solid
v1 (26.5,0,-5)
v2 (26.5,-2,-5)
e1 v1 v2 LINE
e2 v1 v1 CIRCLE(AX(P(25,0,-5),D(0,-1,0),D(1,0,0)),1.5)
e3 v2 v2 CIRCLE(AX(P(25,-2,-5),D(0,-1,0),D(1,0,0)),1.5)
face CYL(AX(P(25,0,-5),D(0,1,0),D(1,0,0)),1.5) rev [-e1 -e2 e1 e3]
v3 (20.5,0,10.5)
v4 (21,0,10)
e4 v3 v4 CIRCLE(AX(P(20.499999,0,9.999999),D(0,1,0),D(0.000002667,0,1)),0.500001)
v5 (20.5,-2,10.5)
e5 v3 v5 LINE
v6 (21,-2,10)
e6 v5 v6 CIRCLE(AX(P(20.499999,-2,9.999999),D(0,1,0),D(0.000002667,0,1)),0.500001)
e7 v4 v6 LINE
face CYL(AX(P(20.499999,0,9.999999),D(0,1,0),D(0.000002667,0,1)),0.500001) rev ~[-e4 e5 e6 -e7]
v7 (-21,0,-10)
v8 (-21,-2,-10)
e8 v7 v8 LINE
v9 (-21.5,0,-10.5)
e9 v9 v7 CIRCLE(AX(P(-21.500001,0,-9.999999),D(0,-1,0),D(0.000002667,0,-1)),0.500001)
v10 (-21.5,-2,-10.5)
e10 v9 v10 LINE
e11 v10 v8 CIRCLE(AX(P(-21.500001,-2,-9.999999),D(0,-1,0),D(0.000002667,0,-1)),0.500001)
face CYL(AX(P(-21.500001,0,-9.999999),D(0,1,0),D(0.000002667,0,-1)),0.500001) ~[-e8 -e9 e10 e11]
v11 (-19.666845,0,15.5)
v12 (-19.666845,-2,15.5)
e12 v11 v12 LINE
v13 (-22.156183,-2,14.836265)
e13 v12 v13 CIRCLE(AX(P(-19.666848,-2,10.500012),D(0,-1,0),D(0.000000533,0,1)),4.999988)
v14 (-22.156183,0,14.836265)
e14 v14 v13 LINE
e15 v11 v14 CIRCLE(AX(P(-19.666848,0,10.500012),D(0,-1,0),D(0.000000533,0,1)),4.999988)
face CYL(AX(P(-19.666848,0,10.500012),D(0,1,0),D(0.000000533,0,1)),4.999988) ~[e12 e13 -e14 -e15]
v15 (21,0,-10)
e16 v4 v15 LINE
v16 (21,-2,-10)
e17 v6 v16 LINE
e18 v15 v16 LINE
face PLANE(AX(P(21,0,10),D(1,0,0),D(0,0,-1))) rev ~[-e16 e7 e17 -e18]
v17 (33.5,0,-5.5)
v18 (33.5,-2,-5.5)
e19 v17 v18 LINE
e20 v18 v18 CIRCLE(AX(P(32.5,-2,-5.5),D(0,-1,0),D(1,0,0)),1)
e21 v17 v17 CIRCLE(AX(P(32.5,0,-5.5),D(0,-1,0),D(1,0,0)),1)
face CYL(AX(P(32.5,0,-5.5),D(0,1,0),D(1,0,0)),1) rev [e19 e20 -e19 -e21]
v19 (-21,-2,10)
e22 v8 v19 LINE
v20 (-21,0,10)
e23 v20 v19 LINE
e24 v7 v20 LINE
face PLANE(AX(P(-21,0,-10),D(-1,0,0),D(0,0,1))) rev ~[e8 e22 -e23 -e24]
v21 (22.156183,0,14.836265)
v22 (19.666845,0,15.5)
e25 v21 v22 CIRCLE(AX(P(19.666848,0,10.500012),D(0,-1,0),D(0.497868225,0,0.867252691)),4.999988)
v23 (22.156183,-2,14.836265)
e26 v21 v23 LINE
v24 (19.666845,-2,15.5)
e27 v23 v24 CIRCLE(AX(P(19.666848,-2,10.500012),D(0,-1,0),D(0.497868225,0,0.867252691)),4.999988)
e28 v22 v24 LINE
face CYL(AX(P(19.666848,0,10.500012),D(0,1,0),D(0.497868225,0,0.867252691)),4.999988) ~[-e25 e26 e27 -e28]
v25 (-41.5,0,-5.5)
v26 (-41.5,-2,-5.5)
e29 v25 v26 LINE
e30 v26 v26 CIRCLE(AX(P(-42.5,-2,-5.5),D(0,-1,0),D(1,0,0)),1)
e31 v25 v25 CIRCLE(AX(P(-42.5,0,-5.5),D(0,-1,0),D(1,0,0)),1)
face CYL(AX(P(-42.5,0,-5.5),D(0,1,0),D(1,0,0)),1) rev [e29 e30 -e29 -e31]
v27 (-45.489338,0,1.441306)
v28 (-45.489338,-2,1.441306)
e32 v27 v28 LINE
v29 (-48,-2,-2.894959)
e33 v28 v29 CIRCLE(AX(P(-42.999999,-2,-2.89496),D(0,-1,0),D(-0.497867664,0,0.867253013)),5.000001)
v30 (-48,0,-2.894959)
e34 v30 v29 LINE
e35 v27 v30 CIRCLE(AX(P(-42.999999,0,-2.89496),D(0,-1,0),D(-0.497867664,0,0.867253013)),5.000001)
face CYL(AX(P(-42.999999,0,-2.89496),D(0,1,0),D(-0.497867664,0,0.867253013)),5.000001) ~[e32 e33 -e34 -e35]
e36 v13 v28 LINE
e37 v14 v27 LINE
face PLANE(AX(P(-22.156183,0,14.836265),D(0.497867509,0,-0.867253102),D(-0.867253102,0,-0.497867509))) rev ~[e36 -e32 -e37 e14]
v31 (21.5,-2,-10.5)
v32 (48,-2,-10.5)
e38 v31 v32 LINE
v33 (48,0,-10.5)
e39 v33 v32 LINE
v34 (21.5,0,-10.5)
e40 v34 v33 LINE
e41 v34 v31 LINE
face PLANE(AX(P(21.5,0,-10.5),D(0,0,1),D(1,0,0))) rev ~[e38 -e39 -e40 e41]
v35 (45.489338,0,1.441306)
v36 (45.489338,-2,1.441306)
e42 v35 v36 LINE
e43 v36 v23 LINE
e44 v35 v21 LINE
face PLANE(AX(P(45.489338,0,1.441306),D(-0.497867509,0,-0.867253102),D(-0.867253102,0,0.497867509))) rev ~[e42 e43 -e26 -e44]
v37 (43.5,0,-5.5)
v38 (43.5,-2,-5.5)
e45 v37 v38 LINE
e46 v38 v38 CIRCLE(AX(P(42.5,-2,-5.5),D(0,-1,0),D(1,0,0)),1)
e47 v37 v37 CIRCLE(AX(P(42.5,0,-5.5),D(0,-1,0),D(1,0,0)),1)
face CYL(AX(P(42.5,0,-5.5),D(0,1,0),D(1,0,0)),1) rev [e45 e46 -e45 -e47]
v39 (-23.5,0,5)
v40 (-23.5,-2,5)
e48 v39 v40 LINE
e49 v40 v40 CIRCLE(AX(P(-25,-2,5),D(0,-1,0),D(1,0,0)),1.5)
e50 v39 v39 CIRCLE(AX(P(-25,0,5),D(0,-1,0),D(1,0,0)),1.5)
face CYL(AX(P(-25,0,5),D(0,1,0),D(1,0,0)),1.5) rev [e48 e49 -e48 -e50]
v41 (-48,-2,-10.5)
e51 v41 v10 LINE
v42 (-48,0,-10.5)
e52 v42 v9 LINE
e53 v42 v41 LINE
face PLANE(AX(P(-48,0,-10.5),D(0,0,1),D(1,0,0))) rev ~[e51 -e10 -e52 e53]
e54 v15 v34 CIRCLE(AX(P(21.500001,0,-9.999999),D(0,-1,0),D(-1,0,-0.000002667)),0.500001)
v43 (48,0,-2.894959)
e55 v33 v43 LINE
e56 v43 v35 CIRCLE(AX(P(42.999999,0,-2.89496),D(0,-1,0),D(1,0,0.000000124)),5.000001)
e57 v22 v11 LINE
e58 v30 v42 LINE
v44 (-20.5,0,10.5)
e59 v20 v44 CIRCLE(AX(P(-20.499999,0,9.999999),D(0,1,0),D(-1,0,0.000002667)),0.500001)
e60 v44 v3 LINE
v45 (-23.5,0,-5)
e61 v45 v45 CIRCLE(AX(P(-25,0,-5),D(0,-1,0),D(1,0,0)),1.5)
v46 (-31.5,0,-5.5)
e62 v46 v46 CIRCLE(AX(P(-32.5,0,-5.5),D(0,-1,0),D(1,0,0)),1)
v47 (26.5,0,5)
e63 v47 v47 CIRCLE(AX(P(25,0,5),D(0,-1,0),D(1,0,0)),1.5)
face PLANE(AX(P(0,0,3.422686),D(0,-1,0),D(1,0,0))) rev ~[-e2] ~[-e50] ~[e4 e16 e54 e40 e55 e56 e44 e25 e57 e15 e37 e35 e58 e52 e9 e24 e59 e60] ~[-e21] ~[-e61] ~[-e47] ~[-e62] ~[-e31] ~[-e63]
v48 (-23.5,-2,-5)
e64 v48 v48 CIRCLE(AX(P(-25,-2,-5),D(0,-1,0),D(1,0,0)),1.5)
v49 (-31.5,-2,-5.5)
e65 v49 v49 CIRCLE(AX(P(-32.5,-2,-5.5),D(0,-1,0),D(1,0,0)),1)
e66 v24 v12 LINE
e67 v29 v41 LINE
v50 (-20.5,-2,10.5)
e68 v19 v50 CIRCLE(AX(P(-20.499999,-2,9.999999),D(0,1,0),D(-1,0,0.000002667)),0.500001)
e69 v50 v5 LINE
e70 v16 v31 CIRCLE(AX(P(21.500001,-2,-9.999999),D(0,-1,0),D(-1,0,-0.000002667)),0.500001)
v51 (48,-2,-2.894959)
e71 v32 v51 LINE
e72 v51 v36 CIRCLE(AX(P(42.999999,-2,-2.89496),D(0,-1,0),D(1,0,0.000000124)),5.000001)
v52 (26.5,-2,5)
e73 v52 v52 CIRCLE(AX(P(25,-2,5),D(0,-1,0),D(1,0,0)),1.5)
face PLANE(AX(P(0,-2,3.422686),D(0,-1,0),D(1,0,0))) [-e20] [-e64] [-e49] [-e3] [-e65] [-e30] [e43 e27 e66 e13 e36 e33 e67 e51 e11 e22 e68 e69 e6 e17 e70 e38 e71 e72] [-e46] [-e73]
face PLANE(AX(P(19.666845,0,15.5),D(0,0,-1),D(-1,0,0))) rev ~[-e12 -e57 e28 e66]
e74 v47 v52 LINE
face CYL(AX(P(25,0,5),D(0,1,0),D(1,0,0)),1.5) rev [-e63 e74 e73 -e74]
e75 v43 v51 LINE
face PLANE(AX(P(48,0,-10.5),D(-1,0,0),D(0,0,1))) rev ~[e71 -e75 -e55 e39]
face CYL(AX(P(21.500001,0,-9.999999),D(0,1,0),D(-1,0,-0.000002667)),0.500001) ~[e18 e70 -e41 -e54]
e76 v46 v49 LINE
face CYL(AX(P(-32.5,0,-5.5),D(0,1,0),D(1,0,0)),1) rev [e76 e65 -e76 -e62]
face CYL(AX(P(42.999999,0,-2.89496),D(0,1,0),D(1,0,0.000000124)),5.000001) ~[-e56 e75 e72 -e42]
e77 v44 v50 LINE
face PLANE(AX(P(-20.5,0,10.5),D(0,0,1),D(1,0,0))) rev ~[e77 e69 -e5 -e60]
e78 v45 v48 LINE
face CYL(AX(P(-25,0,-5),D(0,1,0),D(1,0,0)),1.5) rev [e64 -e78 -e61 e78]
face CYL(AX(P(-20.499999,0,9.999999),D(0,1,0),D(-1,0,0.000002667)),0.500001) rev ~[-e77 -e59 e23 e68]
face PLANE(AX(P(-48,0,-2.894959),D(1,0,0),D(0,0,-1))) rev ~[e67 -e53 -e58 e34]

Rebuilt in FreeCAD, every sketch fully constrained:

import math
import FreeCAD as App
import Part
import Sketcher

V = App.Vector
Q = App.Units.Quantity

doc = App.newDocument("Part")
body = doc.addObject("PartDesign::Body", "Body")

# Sketch on XZ plane
sketch1 = doc.addObject("Sketcher::SketchObject", "Sketch")
body.addObject(sketch1)
sketch1.AttachmentSupport = (doc.XZ_Plane, [""])
sketch1.MapMode = "FlatFace"
sketch1.addGeometry([
    Part.ArcOfCircle(Part.Circle(V(-20.499999, 9.999999, 0), V(0, 0, 1), 0.500001), math.radians(90.000153), math.radians(179.999847)),  # 0
    Part.LineSegment(V(-20.5, 10.5, 0), V(20.5, 10.5, 0)),  # 1
    Part.ArcOfCircle(Part.Circle(V(20.499999, 9.999999, 0), V(0, 0, 1), 0.500001), math.radians(0.000153), math.radians(89.999847)),  # 2
    Part.LineSegment(V(21, 10, 0), V(21, -10, 0)),  # 3
    Part.ArcOfCircle(Part.Circle(V(21.500001, -9.999999, 0), V(0, 0, 1), 0.500001), math.radians(-179.999847), math.radians(-90.000153)),  # 4
    Part.LineSegment(V(21.5, -10.5, 0), V(48, -10.5, 0)),  # 5
    Part.LineSegment(V(48, -10.5, 0), V(48, -2.894959, 0)),  # 6
    Part.ArcOfCircle(Part.Circle(V(42.999999, -2.89496, 0), V(0, 0, 1), 5.000001), math.radians(0.000007), math.radians(60.140974)),  # 7
    Part.LineSegment(V(45.489338, 1.441306, 0), V(22.156183, 14.836265, 0)),  # 8
    Part.ArcOfCircle(Part.Circle(V(19.666848, 10.500012, 0), V(0, 0, 1), 4.999988), math.radians(60.140937), math.radians(90.000031)),  # 9
    Part.LineSegment(V(19.666845, 15.5, 0), V(-19.666845, 15.5, 0)),  # 10
    Part.ArcOfCircle(Part.Circle(V(-19.666848, 10.500012, 0), V(0, 0, 1), 4.999988), math.radians(89.999969), math.radians(119.859063)),  # 11
    Part.LineSegment(V(-22.156183, 14.836265, 0), V(-45.489338, 1.441306, 0)),  # 12
    Part.ArcOfCircle(Part.Circle(V(-42.999999, -2.89496, 0), V(0, 0, 1), 5.000001), math.radians(119.859026), math.radians(179.999993)),  # 13
    Part.LineSegment(V(-48, -2.894959, 0), V(-48, -10.5, 0)),  # 14
    Part.LineSegment(V(-48, -10.5, 0), V(-21.5, -10.5, 0)),  # 15
    Part.ArcOfCircle(Part.Circle(V(-21.500001, -9.999999, 0), V(0, 0, 1), 0.500001), math.radians(-89.999847), math.radians(-0.000153)),  # 16
    Part.LineSegment(V(-21, -10, 0), V(-21, 10, 0)),  # 17
    Part.Circle(V(-42.5, -5.5, 0), V(0, 0, 1), 1),  # 18
    Part.Circle(V(-32.5, -5.5, 0), V(0, 0, 1), 1),  # 19
    Part.Circle(V(-25, -5, 0), V(0, 0, 1), 1.5),  # 20
    Part.Circle(V(25, -5, 0), V(0, 0, 1), 1.5),  # 21
    Part.Circle(V(32.5, -5.5, 0), V(0, 0, 1), 1),  # 22
    Part.Circle(V(42.5, -5.5, 0), V(0, 0, 1), 1),  # 23
    Part.Circle(V(-25, 5, 0), V(0, 0, 1), 1.5),  # 24
    Part.Circle(V(25, 5, 0), V(0, 0, 1), 1.5),  # 25
], False)
sketch1.addConstraint([
    Sketcher.Constraint("Coincident", 0, 1, 1, 1),
    Sketcher.Constraint("Coincident", 1, 2, 2, 2),
    Sketcher.Constraint("Coincident", 2, 1, 3, 1),
    Sketcher.Constraint("Coincident", 3, 2, 4, 1),
    Sketcher.Constraint("Coincident", 4, 2, 5, 1),
    Sketcher.Constraint("Coincident", 5, 2, 6, 1),
    Sketcher.Constraint("Tangent", 6, 2, 7, 1),
    Sketcher.Constraint("Tangent", 7, 2, 8, 1),
    Sketcher.Constraint("Tangent", 8, 2, 9, 1),
    Sketcher.Constraint("Tangent", 9, 2, 10, 1),
    Sketcher.Constraint("Tangent", 10, 2, 11, 1),
    Sketcher.Constraint("Tangent", 11, 2, 12, 1),
    Sketcher.Constraint("Tangent", 12, 2, 13, 1),
    Sketcher.Constraint("Tangent", 13, 2, 14, 1),
    Sketcher.Constraint("Coincident", 14, 2, 15, 1),
    Sketcher.Constraint("Coincident", 15, 2, 16, 1),
    Sketcher.Constraint("Coincident", 16, 2, 17, 1),
    Sketcher.Constraint("Coincident", 17, 2, 0, 2),
    Sketcher.Constraint("Horizontal", 1),
    Sketcher.Constraint("Vertical", 3),
    Sketcher.Constraint("Horizontal", 5),
    Sketcher.Constraint("Vertical", 6),
    Sketcher.Constraint("Horizontal", 10),
    Sketcher.Constraint("Vertical", 14),
    Sketcher.Constraint("Horizontal", 15),
    Sketcher.Constraint("Vertical", 17),
    Sketcher.Constraint("Equal", 0, 2),
    Sketcher.Constraint("Equal", 2, 4),
    Sketcher.Constraint("Equal", 9, 11),
    Sketcher.Constraint("Equal", 7, 13),
    Sketcher.Constraint("Equal", 4, 16),
    Sketcher.Constraint("Equal", 18, 19),
    Sketcher.Constraint("Equal", 20, 21),
    Sketcher.Constraint("Equal", 19, 22),
    Sketcher.Constraint("Equal", 22, 23),
    Sketcher.Constraint("Equal", 21, 24),
    Sketcher.Constraint("Equal", 24, 25),
    Sketcher.Constraint("Symmetric", 21, 3, 24, 3, -1, 1),
    Sketcher.Constraint("Symmetric", 20, 3, 25, 3, -1, 1),
    Sketcher.Constraint("Symmetric", 2, 1, 16, 2, -1, 1),
    Sketcher.Constraint("Symmetric", 7, 3, 13, 3, -2),
    Sketcher.Constraint("Symmetric", 20, 3, 21, 3, -2),
    Sketcher.Constraint("Symmetric", 19, 3, 22, 3, -2),
    Sketcher.Constraint("Symmetric", 18, 3, 23, 3, -2),
    Sketcher.Constraint("Symmetric", 4, 2, 15, 2, -2),
    Sketcher.Constraint("Horizontal", 18, 3, 19, 3),
    Sketcher.Constraint("Horizontal", 0, 3, 2, 1),
    Sketcher.Constraint("Horizontal", 16, 3, 3, 2),
    Sketcher.Constraint("Horizontal", 8, 2, 11, 2),
    Sketcher.Constraint("Horizontal", 3, 2, 16, 2),
    Sketcher.Constraint("Horizontal", 2, 1, 17, 2),
    Sketcher.Constraint("Vertical", 2, 3, 1, 2),
    Sketcher.Constraint("Vertical", 16, 3, 15, 2),
    Sketcher.Constraint("Diameter", 18, Q("2 mm")),
    Sketcher.Constraint("Diameter", 20, Q("3 mm")),
    Sketcher.Constraint("Radius", 7, Q("5.000001 mm")),
    Sketcher.Constraint("Radius", 0, Q("0.500001 mm")),
    Sketcher.Constraint("DistanceX", 1, 1, 1, 2, Q("41 mm")),
    Sketcher.Constraint("DistanceY", 3, 2, 3, 1, Q("20 mm")),
    Sketcher.Constraint("DistanceX", 5, 1, 5, 2, Q("26.5 mm")),
    Sketcher.Constraint("DistanceX", -1, 1, 7, 3, Q("42.999999 mm")),
    Sketcher.Constraint("DistanceX", 20, 3, -1, 1, Q("25 mm")),
    Sketcher.Constraint("DistanceY", 20, 3, -1, 1, Q("5 mm")),
    Sketcher.Constraint("DistanceX", 18, 3, 16, 3, Q("20.999999 mm")),
    Sketcher.Constraint("DistanceX", 18, 3, 19, 3, Q("10 mm")),
    Sketcher.Constraint("DistanceY", 19, 3, 0, 1, Q("16 mm")),
    Sketcher.Constraint("DistanceY", 1, 2, 9, 2, Q("5 mm")),
    Sketcher.Constraint("Radius", 9, Q("4.999988 mm")),
    Sketcher.Constraint("DistanceX", 10, 2, 10, 1, Q("39.33369 mm")),
    Sketcher.Constraint("DistanceY", 6, 1, 6, 2, Q("7.605041 mm")),
])
pad1 = doc.addObject("PartDesign::Pad", "Pad")
body.addObject(pad1)
pad1.Profile = sketch1
pad1.Length = 2

doc.recompute()
